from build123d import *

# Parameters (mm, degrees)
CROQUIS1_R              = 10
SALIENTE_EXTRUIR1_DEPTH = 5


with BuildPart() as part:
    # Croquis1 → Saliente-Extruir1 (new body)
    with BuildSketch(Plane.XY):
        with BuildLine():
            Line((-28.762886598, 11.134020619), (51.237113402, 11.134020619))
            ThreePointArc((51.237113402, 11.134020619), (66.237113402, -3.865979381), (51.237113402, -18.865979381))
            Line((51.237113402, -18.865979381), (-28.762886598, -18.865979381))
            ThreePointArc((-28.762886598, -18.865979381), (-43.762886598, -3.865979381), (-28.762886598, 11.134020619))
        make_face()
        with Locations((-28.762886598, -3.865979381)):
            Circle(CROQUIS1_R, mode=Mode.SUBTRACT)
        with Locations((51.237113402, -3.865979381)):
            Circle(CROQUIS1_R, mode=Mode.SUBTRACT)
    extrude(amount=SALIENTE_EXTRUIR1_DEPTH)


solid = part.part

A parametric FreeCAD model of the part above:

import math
import FreeCAD as App
import Part
import Sketcher

doc = App.newDocument("Part")
body = doc.addObject("PartDesign::Body", "Body")

# Sketch on XY plane
sketch1 = body.newObject("Sketcher::SketchObject", "Sketch")
sketch1.AttachmentSupport = (doc.getObject("XY_Plane"), [""])
sketch1.MapMode = "FlatFace"
sketch1.addGeometry(Part.LineSegment(App.Vector(51, 11, 0), App.Vector(-29, 11, 0)), False)
sketch1.addGeometry(Part.ArcOfCircle(Part.Circle(App.Vector(-29, -4, 0), App.Vector(0, 0, 1), 15), math.radians(90), math.radians(270)), False)
sketch1.addGeometry(Part.LineSegment(App.Vector(-29, -19, 0), App.Vector(51, -19, 0)), False)
sketch1.addGeometry(Part.ArcOfCircle(Part.Circle(App.Vector(51, -4, 0), App.Vector(0, 0, 1), 15), math.radians(-90), math.radians(90)), False)
sketch1.addGeometry(Part.Circle(App.Vector(51, -4, 0), App.Vector(0, 0, 1), 10), False)
sketch1.addGeometry(Part.Circle(App.Vector(-29, -4, 0), App.Vector(0, 0, 1), 10), False)
sketch1.addConstraint(Sketcher.Constraint("Tangent", 0, 2, 1, 1))
sketch1.addConstraint(Sketcher.Constraint("Tangent", 1, 2, 2, 1))
sketch1.addConstraint(Sketcher.Constraint("Tangent", 2, 2, 3, 1))
sketch1.addConstraint(Sketcher.Constraint("Tangent", 3, 2, 0, 1))
sketch1.addConstraint(Sketcher.Constraint("Horizontal", 0))
sketch1.addConstraint(Sketcher.Constraint("Horizontal", 2))
sketch1.addConstraint(Sketcher.Constraint("Coincident", 4, 3, 3, 3))
sketch1.addConstraint(Sketcher.Constraint("Coincident", 5, 3, 1, 3))
sketch1.addConstraint(Sketcher.Constraint("Equal", 4, 5))
sketch1.addConstraint(Sketcher.Constraint("Diameter", 4, 20.0))
sketch1.addConstraint(Sketcher.Constraint("Radius", 1, 15.0))
sketch1.addConstraint(Sketcher.Constraint("DistanceX", 0, 2, 0, 1, 80.0))
sketch1.addConstraint(Sketcher.Constraint("DistanceY", 1, 3, -1, 1, 3.865979))
sketch1.addConstraint(Sketcher.Constraint("DistanceX", 1, 3, -1, 1, 28.762887))
pad1 = body.newObject("PartDesign::Pad", "Pad")
pad1.Profile = sketch1
pad1.Length = 5

doc.recompute()
